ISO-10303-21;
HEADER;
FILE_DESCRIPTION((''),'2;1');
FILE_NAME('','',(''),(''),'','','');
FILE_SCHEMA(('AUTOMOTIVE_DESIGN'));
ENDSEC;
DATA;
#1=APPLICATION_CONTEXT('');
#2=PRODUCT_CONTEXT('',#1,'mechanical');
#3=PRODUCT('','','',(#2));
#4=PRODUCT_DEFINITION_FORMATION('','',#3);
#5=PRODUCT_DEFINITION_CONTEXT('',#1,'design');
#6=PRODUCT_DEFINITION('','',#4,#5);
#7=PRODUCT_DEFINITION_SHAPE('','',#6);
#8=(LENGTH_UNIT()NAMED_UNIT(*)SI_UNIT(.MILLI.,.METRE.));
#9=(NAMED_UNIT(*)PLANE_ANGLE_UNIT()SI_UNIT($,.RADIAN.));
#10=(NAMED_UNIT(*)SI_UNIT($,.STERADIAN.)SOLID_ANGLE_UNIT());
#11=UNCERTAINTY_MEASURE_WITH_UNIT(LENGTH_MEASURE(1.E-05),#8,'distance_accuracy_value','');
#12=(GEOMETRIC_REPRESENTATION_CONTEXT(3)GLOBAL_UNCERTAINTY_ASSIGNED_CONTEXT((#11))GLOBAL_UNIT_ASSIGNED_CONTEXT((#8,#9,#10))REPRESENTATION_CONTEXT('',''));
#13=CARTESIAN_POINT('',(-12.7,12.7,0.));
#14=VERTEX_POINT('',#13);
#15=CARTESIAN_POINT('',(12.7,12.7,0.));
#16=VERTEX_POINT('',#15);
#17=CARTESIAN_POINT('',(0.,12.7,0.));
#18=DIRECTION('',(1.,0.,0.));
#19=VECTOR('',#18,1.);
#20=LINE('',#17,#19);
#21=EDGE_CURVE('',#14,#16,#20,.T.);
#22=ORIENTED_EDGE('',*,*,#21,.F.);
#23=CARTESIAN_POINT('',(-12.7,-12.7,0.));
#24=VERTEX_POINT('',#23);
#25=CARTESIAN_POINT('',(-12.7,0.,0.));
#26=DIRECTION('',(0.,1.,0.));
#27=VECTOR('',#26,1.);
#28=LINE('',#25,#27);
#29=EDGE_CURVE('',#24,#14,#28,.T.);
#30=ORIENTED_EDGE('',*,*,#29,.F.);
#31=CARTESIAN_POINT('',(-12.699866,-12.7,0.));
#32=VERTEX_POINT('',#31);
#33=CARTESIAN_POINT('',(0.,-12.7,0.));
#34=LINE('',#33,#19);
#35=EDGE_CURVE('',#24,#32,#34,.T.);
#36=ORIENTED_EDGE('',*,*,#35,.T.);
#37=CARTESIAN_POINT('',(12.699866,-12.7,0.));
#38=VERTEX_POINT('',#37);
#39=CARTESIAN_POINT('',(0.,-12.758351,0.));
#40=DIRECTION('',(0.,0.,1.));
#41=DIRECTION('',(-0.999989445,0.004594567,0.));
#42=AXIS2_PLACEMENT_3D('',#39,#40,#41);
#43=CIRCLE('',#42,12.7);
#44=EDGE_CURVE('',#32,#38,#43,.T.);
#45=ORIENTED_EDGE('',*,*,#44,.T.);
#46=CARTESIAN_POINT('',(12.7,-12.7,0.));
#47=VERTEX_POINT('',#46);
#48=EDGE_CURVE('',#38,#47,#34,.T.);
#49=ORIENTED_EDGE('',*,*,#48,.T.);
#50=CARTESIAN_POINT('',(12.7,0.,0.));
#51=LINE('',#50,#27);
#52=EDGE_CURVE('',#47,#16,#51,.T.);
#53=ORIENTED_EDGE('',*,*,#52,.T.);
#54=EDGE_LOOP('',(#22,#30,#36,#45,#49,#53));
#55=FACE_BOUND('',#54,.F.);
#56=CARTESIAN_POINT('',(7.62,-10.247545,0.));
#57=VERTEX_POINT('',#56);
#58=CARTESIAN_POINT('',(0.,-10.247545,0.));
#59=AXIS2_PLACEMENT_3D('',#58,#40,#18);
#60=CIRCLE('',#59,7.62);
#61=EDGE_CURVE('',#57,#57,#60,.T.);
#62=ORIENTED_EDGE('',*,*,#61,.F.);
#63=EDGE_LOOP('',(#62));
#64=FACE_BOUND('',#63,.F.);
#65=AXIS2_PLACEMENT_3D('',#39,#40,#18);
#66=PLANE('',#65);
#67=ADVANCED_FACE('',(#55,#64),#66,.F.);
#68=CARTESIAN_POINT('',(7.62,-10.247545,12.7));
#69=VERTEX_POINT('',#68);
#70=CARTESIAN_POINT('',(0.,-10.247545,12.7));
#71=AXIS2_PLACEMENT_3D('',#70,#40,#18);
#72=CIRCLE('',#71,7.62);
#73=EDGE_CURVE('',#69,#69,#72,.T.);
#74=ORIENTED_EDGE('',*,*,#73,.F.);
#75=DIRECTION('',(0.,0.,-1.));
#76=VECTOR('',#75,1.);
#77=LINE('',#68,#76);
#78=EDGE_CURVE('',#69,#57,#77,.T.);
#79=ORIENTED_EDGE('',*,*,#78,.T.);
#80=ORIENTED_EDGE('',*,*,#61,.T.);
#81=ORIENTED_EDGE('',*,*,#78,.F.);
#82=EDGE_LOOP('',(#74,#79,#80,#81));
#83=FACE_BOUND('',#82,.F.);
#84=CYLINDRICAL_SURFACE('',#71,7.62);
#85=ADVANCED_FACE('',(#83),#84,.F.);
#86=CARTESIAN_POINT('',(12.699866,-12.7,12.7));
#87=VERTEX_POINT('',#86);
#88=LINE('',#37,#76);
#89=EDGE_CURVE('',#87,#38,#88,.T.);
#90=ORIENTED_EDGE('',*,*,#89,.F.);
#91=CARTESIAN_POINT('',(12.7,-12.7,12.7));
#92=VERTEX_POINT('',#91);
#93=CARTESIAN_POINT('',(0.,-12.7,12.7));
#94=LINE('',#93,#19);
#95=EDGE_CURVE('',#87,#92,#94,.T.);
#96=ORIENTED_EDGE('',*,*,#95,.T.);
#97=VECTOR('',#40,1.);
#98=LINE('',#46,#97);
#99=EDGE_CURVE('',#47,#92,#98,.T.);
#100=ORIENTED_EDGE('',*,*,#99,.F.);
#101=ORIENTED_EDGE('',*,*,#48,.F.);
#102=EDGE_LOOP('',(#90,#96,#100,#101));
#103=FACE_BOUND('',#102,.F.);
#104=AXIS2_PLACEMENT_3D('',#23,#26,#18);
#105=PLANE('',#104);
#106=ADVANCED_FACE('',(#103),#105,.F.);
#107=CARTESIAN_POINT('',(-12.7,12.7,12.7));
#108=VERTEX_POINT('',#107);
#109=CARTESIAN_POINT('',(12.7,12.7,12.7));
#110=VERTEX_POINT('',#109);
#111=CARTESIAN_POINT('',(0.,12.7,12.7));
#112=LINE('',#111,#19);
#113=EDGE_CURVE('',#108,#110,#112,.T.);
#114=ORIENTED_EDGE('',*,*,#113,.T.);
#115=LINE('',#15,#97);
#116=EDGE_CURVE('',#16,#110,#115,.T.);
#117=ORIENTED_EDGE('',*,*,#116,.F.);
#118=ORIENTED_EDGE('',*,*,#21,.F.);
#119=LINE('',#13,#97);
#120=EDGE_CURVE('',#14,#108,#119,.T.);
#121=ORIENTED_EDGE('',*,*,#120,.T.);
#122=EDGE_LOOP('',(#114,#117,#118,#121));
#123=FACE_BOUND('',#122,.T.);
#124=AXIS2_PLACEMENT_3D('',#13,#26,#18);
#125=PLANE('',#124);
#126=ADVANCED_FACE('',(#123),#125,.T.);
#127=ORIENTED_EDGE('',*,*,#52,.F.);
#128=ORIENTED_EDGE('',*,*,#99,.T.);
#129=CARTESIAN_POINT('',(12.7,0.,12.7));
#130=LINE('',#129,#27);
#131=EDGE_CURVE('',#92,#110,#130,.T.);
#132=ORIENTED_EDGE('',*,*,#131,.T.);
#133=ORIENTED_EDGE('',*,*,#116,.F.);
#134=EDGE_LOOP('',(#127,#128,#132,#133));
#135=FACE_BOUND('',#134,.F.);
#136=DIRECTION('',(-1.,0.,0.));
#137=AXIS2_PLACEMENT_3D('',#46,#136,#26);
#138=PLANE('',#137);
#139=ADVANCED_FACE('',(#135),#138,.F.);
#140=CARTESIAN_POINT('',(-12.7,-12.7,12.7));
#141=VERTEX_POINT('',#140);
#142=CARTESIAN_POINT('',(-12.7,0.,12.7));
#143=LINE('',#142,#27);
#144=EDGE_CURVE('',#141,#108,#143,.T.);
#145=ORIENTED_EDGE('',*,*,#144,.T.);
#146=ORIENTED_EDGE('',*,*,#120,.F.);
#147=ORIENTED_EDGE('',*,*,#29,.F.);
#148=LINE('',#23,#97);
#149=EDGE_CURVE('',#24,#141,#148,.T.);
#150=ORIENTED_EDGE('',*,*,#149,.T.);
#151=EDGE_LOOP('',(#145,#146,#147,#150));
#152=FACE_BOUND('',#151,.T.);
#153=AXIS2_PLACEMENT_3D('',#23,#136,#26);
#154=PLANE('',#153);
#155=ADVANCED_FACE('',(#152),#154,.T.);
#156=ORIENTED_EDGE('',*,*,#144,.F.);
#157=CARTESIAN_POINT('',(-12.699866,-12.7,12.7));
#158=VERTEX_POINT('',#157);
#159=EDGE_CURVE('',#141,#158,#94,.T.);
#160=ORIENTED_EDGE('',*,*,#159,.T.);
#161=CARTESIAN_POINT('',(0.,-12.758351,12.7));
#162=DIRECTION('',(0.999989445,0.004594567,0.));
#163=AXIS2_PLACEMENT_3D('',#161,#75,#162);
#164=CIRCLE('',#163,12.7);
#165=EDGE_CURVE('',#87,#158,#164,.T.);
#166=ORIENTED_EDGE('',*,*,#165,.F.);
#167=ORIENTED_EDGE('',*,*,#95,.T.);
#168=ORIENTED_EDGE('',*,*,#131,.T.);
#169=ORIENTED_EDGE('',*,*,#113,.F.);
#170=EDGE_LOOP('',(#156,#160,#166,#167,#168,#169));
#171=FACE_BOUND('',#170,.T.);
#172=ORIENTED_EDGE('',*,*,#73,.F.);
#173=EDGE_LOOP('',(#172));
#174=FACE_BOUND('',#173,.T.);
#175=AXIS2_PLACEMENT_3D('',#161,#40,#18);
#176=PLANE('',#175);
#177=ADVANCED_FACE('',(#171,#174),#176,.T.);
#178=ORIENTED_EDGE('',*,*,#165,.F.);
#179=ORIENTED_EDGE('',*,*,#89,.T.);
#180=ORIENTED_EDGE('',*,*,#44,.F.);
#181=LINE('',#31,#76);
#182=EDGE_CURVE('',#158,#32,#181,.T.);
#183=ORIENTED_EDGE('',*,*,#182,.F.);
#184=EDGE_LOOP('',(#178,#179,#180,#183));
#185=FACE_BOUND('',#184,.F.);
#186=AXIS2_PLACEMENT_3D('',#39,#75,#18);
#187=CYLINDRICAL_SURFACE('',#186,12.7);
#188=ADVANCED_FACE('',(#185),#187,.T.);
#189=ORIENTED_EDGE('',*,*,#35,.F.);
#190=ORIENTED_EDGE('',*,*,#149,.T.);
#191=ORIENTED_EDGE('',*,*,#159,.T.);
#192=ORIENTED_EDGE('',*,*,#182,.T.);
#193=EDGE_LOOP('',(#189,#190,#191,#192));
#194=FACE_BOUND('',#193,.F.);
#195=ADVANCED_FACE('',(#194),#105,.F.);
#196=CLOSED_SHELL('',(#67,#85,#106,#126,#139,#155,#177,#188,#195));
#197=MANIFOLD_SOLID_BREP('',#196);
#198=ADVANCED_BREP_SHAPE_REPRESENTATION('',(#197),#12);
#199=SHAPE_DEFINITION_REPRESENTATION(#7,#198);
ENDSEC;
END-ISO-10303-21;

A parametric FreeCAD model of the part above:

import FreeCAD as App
import Part
import Sketcher
from FreeCAD import Vector
Q = App.Units.Quantity

doc = App.newDocument("Part")
body = doc.addObject("PartDesign::Body", "Body")

sketch1 = doc.addObject("Sketcher::SketchObject", "Sketch")
body.addObject(sketch1)
sketch1.AttachmentSupport = (doc.XY_Plane, [""])
sketch1.MapMode = "FlatFace"
sketch1.addGeometry(Part.LineSegment(Vector(-13, 13, 0), Vector(-13, -13, 0)), False)
sketch1.addGeometry(Part.LineSegment(Vector(-13, -13, 0), Vector(13, -13, 0)), False)
sketch1.addGeometry(Part.LineSegment(Vector(13, -13, 0), Vector(13, 13, 0)), False)
sketch1.addGeometry(Part.LineSegment(Vector(13, 13, 0), Vector(-13, 13, 0)), False)
sketch1.addConstraint(Sketcher.Constraint("Coincident", 0, 2, 1, 1))
sketch1.addConstraint(Sketcher.Constraint("Coincident", 1, 2, 2, 1))
sketch1.addConstraint(Sketcher.Constraint("Coincident", 2, 2, 3, 1))
sketch1.addConstraint(Sketcher.Constraint("Coincident", 3, 2, 0, 1))
sketch1.addConstraint(Sketcher.Constraint("Vertical", 0))
sketch1.addConstraint(Sketcher.Constraint("Horizontal", 1))
sketch1.addConstraint(Sketcher.Constraint("Vertical", 2))
sketch1.addConstraint(Sketcher.Constraint("Horizontal", 3))
sketch1.addConstraint(Sketcher.Constraint("Symmetric", 0, 2, 2, 2, -1, 1))
sketch1.addConstraint(Sketcher.Constraint("Equal", 3, 0))
sketch1.addConstraint(Sketcher.Constraint("DistanceX", 1, 1, 1, 2, Q("1 in")))
pad1 = doc.addObject("PartDesign::Pad", "Pad")
body.addObject(pad1)
pad1.Profile = sketch1
pad1.Length = Q("0.5 in")

sketch2 = doc.addObject("Sketcher::SketchObject", "Sketch001")
body.addObject(sketch2)
sketch2.AttachmentSupport = (doc.XY_Plane, [""])
sketch2.MapMode = "FlatFace"
sketch2.addGeometry(Part.Circle(Vector(0, -13, 0), Vector(0, 0, 1), 13), False)
sketch2.addConstraint(Sketcher.Constraint("PointOnObject", 0, 3, -2))
sketch2.addConstraint(Sketcher.Constraint("Diameter", 0, Q("1 in")))
sketch2.addConstraint(Sketcher.Constraint("DistanceY", 0, 3, -1, 1, Q("12.758351 mm")))
pad2 = doc.addObject("PartDesign::Pad", "Pad001")
body.addObject(pad2)
pad2.Profile = sketch2
pad2.Length = Q("0.5 in")

sketch3 = doc.addObject("Sketcher::SketchObject", "Sketch002")
body.addObject(sketch3)
sketch3.AttachmentSupport = (doc.XY_Plane, [""])
sketch3.MapMode = "FlatFace"
sketch3.AttachmentOffset = App.Placement(Vector(0, 0, 0.5 * 25.4), App.Rotation())
sketch3.addGeometry(Part.Circle(Vector(0, -10, 0), Vector(0, 0, 1), 8), False)
sketch3.addConstraint(Sketcher.Constraint("PointOnObject", 0, 3, -2))
sketch3.addConstraint(Sketcher.Constraint("Diameter", 0, Q("0.6 in")))
sketch3.addConstraint(Sketcher.Constraint("DistanceY", 0, 3, -1, 1, Q("10.247545 mm")))
pocket1 = doc.addObject("PartDesign::Pocket", "Pocket")
body.addObject(pocket1)
pocket1.Profile = sketch3
pocket1.Type = "ThroughAll"

doc.recompute()
